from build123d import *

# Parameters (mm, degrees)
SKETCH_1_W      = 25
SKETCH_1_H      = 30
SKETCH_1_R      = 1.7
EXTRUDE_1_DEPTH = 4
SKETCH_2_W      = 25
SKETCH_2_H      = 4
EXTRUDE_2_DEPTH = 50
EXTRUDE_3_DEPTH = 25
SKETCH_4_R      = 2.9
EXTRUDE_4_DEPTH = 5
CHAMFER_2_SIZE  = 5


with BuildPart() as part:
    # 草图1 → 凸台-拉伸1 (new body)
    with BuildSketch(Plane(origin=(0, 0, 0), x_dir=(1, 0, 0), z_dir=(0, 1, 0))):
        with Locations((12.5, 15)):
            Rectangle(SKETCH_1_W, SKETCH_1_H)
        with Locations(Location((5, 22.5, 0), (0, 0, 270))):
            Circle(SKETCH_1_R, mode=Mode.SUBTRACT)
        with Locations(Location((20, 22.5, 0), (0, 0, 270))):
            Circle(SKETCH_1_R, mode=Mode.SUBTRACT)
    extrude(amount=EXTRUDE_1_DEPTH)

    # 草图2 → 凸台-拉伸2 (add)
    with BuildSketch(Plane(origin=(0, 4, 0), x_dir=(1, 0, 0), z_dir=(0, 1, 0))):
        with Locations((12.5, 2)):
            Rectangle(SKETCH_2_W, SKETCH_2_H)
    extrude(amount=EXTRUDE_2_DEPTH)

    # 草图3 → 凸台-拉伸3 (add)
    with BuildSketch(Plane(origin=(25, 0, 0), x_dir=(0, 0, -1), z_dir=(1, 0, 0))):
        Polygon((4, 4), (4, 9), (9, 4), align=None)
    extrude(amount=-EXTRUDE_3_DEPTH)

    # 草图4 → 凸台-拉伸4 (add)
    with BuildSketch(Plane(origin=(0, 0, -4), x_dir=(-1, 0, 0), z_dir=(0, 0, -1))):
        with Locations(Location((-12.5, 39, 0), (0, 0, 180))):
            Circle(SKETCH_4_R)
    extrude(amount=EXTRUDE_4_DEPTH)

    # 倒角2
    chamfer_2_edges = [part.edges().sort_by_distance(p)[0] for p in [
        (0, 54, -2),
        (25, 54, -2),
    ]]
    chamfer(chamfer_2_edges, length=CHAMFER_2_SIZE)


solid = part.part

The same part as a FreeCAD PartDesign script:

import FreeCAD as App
import Part
import Sketcher

V = App.Vector


def edges_at(feature, points):
    """Names of the edges that pass closest to the given points."""
    edges = feature.Shape.Edges
    near = lambda p: min(range(len(edges)), key=lambda i: edges[i].distToShape(Part.Vertex(*p))[0])
    return sorted({f"Edge{near(p) + 1}" for p in points})


def add_polygon(sketch, points):
    """Adds a closed chain of lines whose ends are joined by coincident constraints."""
    first, n = sketch.GeometryCount, len(points)
    for a, b in zip(points, points[1:] + points[:1]):
        sketch.addGeometry(Part.LineSegment(App.Vector(*a, 0), App.Vector(*b, 0)), False)
    for i in range(n):
        sketch.addConstraint(Sketcher.Constraint("Coincident", first + i, 2, first + (i + 1) % n, 1))

doc = App.newDocument("Part")
body = doc.addObject("PartDesign::Body", "Body")

# Sketch on XZ plane
sketch1 = body.newObject("Sketcher::SketchObject", "Sketch")
sketch1.AttachmentSupport = (doc.getObject("XZ_Plane"), [""])
sketch1.MapMode = "FlatFace"
add_polygon(sketch1, [(0, -30), (0, 0), (25, 0), (25, -30)])  # lines 0-3
sketch1.addGeometry(Part.Circle(V(5, -22.5, 0), V(0, 0, 1), 1.7), False)  # 4
sketch1.addGeometry(Part.Circle(V(20, -22.5, 0), V(0, 0, 1), 1.7), False)  # 5
sketch1.addConstraint(Sketcher.Constraint("Vertical", 0))
sketch1.addConstraint(Sketcher.Constraint("Horizontal", 1))
sketch1.addConstraint(Sketcher.Constraint("Vertical", 2))
sketch1.addConstraint(Sketcher.Constraint("Horizontal", 3))
sketch1.addConstraint(Sketcher.Constraint("Coincident", 0, 2, -1, 1))
sketch1.addConstraint(Sketcher.Constraint("Equal", 4, 5))
sketch1.addConstraint(Sketcher.Constraint("Horizontal", 4, 3, 5, 3))
sketch1.addConstraint(Sketcher.Constraint("Diameter", 4, 3.4))
sketch1.addConstraint(Sketcher.Constraint("DistanceX", 1, 1, 1, 2, 25.0))
sketch1.addConstraint(Sketcher.Constraint("DistanceY", 0, 1, 0, 2, 30.0))
sketch1.addConstraint(Sketcher.Constraint("DistanceX", -1, 1, 4, 3, 5.0))
sketch1.addConstraint(Sketcher.Constraint("DistanceX", -1, 1, 5, 3, 20.0))
sketch1.addConstraint(Sketcher.Constraint("DistanceY", 4, 3, -1, 1, 22.5))
pad1 = body.newObject("PartDesign::Pad", "Pad")
pad1.Profile = sketch1
pad1.Length = 4
pad1.Reversed = True

# Sketch on XZ plane
sketch2 = body.newObject("Sketcher::SketchObject", "Sketch001")
sketch2.AttachmentSupport = (doc.getObject("XZ_Plane"), [""])
sketch2.MapMode = "FlatFace"
sketch2.AttachmentOffset = App.Placement(V(0, 0, -4), App.Rotation())
add_polygon(sketch2, [(0, -4), (0, 0), (25, 0), (25, -4)])  # lines 0-3
sketch2.addConstraint(Sketcher.Constraint("Vertical", 0))
sketch2.addConstraint(Sketcher.Constraint("Horizontal", 1))
sketch2.addConstraint(Sketcher.Constraint("Vertical", 2))
sketch2.addConstraint(Sketcher.Constraint("Horizontal", 3))
sketch2.addConstraint(Sketcher.Constraint("Coincident", 0, 2, -1, 1))
sketch2.addConstraint(Sketcher.Constraint("DistanceX", 1, 1, 1, 2, 25.0))
sketch2.addConstraint(Sketcher.Constraint("DistanceY", 0, 1, 0, 2, 4.0))
pad2 = body.newObject("PartDesign::Pad", "Pad001")
pad2.Profile = sketch2
pad2.Length = 50
pad2.Reversed = True

# Sketch on YZ plane
sketch3 = body.newObject("Sketcher::SketchObject", "Sketch002")
sketch3.AttachmentSupport = (doc.getObject("YZ_Plane"), [""])
sketch3.MapMode = "FlatFace"
sketch3.AttachmentOffset = App.Placement(V(0, 0, 25), App.Rotation())
add_polygon(sketch3, [(9, -4), (4, -4), (4, -9)])  # lines 0-2
sketch3.addConstraint(Sketcher.Constraint("Horizontal", 0))
sketch3.addConstraint(Sketcher.Constraint("Vertical", 1))
sketch3.addConstraint(Sketcher.Constraint("Equal", 0, 1))
sketch3.addConstraint(Sketcher.Constraint("DistanceX", 0, 2, 0, 1, 5.0))
sketch3.addConstraint(Sketcher.Constraint("DistanceX", -1, 1, 0, 2, 4.0))
sketch3.addConstraint(Sketcher.Constraint("DistanceY", 0, 2, -1, 1, 4.0))
pad3 = body.newObject("PartDesign::Pad", "Pad002")
pad3.Profile = sketch3
pad3.Length = 25
pad3.Reversed = True

# Sketch on XY plane
sketch4 = body.newObject("Sketcher::SketchObject", "Sketch003")
sketch4.AttachmentSupport = (doc.getObject("XY_Plane"), [""])
sketch4.MapMode = "FlatFace"
sketch4.AttachmentOffset = App.Placement(V(0, 0, -4), App.Rotation())
sketch4.addGeometry(Part.Circle(V(12.5, 39, 0), V(0, 0, 1), 2.9), False)
sketch4.addConstraint(Sketcher.Constraint("Diameter", 0, 5.8))
sketch4.addConstraint(Sketcher.Constraint("DistanceY", -1, 1, 0, 3, 39.0))
sketch4.addConstraint(Sketcher.Constraint("DistanceX", -1, 1, 0, 3, 12.5))
pad4 = body.newObject("PartDesign::Pad", "Pad003")
pad4.Profile = sketch4
pad4.Length = 5
pad4.Reversed = True
doc.recompute()

chamfer = body.newObject("PartDesign::Chamfer", "Chamfer")
chamfer.Base = (pad4, edges_at(pad4, [(0, 54, -2), (25, 54, -2)]))
chamfer.Size = 5

doc.recompute()
